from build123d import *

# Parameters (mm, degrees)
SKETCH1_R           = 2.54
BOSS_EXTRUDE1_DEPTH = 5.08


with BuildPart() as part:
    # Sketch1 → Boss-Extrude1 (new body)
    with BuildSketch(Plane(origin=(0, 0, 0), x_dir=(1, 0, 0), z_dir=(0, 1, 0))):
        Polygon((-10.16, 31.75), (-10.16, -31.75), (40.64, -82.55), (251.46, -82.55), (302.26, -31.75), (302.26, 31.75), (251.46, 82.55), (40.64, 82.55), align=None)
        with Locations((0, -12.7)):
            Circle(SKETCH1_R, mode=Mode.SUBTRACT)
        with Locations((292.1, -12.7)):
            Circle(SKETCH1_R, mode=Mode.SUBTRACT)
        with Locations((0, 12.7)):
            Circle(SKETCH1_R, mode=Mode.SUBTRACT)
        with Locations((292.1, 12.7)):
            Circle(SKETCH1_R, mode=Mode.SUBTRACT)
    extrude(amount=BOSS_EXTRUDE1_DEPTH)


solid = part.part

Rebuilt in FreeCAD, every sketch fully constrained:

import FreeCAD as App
import Part
import Sketcher
from FreeCAD import Vector
Q = App.Units.Quantity


def add_polygon(sketch, points):
    """Adds a closed chain of lines whose ends are joined by coincident constraints."""
    first, n = sketch.GeometryCount, len(points)
    for a, b in zip(points, points[1:] + points[:1]):
        sketch.addGeometry(Part.LineSegment(App.Vector(*a, 0), App.Vector(*b, 0)), False)
    for i in range(n):
        sketch.addConstraint(Sketcher.Constraint("Coincident", first + i, 2, first + (i + 1) % n, 1))

doc = App.newDocument("Part")
params = doc.addObject("Spreadsheet::Sheet", "Params")
for row, (alias, value) in enumerate([
    ("sketch1_diameter", "0.2 in"),
    ("sketch1_width", "8.3 in"),
    ("sketch1_height", "2.5 in"),
    ("pad1_length", "0.2 in"),
], start=1):
    params.set(f"A{row}", alias)
    params.set(f"B{row}", "=" + value)
    params.setAlias(f"B{row}", alias)

body = doc.addObject("PartDesign::Body", "Body")

# Sketch on XZ plane
sketch1 = body.newObject("Sketcher::SketchObject", "Sketch")
sketch1.AttachmentSupport = (doc.getObject("XZ_Plane"), [""])
sketch1.MapMode = "FlatFace"
add_polygon(sketch1, [(-10.2, -31.8), (-10.2, 31.8), (40.6, 82.5), (251.5, 82.5), (302.3, 31.8), (302.3, -31.8), (251.5, -82.5), (40.6, -82.5)])  # lines 0-7
sketch1.addGeometry(Part.Circle(Vector(0, 12.7, 0), Vector(0, 0, 1), 2.5), False)  # 8
sketch1.addGeometry(Part.Circle(Vector(292.1, 12.7, 0), Vector(0, 0, 1), 2.5), False)  # 9
sketch1.addGeometry(Part.Circle(Vector(0, -12.7, 0), Vector(0, 0, 1), 2.5), False)  # 10
sketch1.addGeometry(Part.Circle(Vector(292.1, -12.7, 0), Vector(0, 0, 1), 2.5), False)  # 11
sketch1.addConstraint(Sketcher.Constraint("Vertical", 0))
sketch1.addConstraint(Sketcher.Constraint("Horizontal", 2))
sketch1.addConstraint(Sketcher.Constraint("Vertical", 4))
sketch1.addConstraint(Sketcher.Constraint("Horizontal", 6))
sketch1.addConstraint(Sketcher.Constraint("Equal", 8, 9))
sketch1.addConstraint(Sketcher.Constraint("Equal", 9, 10))
sketch1.addConstraint(Sketcher.Constraint("Equal", 10, 11))
sketch1.addConstraint(Sketcher.Constraint("Symmetric", 8, 3, 10, 3, -1, 1))
sketch1.addConstraint(Sketcher.Constraint("Symmetric", 9, 3, 11, 3, -1))
sketch1.addConstraint(Sketcher.Constraint("Symmetric", 2, 2, 5, 2, -1))
sketch1.addConstraint(Sketcher.Constraint("PointOnObject", 8, 3, -2))
sketch1.addConstraint(Sketcher.Constraint("Perpendicular", 1, 3))
sketch1.addConstraint(Sketcher.Constraint("Perpendicular", 3, 5))
sketch1.addConstraint(Sketcher.Constraint("Perpendicular", 5, 7))
sketch1.addConstraint(Sketcher.Constraint("Horizontal", 8, 3, 9, 3))
sketch1.addConstraint(Sketcher.Constraint("Horizontal", 0, 2, 3, 2))
sketch1.addConstraint(Sketcher.Constraint("Horizontal", 4, 2, 7, 2))
sketch1.addConstraint(Sketcher.Constraint("Vertical", 1, 2, 6, 2))
sketch1.addConstraint(Sketcher.Constraint("Diameter", 8, Q("0.2 in")))
sketch1.addConstraint(Sketcher.Constraint("DistanceX", 2, 1, 2, 2, Q("8.3 in")))
sketch1.addConstraint(Sketcher.Constraint("DistanceY", 0, 1, 0, 2, Q("2.5 in")))
sketch1.addConstraint(Sketcher.Constraint("DistanceY", 10, 3, 8, 3, Q("1 in")))
sketch1.addConstraint(Sketcher.Constraint("DistanceX", 0, 2, 1, 2, Q("2 in")))
sketch1.addConstraint(Sketcher.Constraint("DistanceX", -1, 1, 9, 3, Q("11.5 in")))
sketch1.addConstraint(Sketcher.Constraint("DistanceX", 0, 2, -1, 1, Q("0.4 in")))
sketch1.setExpression("Constraints[26]", "Params.sketch1_diameter")
sketch1.setExpression("Constraints[27]", "Params.sketch1_width")
sketch1.setExpression("Constraints[28]", "Params.sketch1_height")
pad1 = body.newObject("PartDesign::Pad", "Pad")
pad1.Profile = sketch1
pad1.setExpression("Length", "Params.pad1_length")
pad1.Reversed = True

doc.recompute()
